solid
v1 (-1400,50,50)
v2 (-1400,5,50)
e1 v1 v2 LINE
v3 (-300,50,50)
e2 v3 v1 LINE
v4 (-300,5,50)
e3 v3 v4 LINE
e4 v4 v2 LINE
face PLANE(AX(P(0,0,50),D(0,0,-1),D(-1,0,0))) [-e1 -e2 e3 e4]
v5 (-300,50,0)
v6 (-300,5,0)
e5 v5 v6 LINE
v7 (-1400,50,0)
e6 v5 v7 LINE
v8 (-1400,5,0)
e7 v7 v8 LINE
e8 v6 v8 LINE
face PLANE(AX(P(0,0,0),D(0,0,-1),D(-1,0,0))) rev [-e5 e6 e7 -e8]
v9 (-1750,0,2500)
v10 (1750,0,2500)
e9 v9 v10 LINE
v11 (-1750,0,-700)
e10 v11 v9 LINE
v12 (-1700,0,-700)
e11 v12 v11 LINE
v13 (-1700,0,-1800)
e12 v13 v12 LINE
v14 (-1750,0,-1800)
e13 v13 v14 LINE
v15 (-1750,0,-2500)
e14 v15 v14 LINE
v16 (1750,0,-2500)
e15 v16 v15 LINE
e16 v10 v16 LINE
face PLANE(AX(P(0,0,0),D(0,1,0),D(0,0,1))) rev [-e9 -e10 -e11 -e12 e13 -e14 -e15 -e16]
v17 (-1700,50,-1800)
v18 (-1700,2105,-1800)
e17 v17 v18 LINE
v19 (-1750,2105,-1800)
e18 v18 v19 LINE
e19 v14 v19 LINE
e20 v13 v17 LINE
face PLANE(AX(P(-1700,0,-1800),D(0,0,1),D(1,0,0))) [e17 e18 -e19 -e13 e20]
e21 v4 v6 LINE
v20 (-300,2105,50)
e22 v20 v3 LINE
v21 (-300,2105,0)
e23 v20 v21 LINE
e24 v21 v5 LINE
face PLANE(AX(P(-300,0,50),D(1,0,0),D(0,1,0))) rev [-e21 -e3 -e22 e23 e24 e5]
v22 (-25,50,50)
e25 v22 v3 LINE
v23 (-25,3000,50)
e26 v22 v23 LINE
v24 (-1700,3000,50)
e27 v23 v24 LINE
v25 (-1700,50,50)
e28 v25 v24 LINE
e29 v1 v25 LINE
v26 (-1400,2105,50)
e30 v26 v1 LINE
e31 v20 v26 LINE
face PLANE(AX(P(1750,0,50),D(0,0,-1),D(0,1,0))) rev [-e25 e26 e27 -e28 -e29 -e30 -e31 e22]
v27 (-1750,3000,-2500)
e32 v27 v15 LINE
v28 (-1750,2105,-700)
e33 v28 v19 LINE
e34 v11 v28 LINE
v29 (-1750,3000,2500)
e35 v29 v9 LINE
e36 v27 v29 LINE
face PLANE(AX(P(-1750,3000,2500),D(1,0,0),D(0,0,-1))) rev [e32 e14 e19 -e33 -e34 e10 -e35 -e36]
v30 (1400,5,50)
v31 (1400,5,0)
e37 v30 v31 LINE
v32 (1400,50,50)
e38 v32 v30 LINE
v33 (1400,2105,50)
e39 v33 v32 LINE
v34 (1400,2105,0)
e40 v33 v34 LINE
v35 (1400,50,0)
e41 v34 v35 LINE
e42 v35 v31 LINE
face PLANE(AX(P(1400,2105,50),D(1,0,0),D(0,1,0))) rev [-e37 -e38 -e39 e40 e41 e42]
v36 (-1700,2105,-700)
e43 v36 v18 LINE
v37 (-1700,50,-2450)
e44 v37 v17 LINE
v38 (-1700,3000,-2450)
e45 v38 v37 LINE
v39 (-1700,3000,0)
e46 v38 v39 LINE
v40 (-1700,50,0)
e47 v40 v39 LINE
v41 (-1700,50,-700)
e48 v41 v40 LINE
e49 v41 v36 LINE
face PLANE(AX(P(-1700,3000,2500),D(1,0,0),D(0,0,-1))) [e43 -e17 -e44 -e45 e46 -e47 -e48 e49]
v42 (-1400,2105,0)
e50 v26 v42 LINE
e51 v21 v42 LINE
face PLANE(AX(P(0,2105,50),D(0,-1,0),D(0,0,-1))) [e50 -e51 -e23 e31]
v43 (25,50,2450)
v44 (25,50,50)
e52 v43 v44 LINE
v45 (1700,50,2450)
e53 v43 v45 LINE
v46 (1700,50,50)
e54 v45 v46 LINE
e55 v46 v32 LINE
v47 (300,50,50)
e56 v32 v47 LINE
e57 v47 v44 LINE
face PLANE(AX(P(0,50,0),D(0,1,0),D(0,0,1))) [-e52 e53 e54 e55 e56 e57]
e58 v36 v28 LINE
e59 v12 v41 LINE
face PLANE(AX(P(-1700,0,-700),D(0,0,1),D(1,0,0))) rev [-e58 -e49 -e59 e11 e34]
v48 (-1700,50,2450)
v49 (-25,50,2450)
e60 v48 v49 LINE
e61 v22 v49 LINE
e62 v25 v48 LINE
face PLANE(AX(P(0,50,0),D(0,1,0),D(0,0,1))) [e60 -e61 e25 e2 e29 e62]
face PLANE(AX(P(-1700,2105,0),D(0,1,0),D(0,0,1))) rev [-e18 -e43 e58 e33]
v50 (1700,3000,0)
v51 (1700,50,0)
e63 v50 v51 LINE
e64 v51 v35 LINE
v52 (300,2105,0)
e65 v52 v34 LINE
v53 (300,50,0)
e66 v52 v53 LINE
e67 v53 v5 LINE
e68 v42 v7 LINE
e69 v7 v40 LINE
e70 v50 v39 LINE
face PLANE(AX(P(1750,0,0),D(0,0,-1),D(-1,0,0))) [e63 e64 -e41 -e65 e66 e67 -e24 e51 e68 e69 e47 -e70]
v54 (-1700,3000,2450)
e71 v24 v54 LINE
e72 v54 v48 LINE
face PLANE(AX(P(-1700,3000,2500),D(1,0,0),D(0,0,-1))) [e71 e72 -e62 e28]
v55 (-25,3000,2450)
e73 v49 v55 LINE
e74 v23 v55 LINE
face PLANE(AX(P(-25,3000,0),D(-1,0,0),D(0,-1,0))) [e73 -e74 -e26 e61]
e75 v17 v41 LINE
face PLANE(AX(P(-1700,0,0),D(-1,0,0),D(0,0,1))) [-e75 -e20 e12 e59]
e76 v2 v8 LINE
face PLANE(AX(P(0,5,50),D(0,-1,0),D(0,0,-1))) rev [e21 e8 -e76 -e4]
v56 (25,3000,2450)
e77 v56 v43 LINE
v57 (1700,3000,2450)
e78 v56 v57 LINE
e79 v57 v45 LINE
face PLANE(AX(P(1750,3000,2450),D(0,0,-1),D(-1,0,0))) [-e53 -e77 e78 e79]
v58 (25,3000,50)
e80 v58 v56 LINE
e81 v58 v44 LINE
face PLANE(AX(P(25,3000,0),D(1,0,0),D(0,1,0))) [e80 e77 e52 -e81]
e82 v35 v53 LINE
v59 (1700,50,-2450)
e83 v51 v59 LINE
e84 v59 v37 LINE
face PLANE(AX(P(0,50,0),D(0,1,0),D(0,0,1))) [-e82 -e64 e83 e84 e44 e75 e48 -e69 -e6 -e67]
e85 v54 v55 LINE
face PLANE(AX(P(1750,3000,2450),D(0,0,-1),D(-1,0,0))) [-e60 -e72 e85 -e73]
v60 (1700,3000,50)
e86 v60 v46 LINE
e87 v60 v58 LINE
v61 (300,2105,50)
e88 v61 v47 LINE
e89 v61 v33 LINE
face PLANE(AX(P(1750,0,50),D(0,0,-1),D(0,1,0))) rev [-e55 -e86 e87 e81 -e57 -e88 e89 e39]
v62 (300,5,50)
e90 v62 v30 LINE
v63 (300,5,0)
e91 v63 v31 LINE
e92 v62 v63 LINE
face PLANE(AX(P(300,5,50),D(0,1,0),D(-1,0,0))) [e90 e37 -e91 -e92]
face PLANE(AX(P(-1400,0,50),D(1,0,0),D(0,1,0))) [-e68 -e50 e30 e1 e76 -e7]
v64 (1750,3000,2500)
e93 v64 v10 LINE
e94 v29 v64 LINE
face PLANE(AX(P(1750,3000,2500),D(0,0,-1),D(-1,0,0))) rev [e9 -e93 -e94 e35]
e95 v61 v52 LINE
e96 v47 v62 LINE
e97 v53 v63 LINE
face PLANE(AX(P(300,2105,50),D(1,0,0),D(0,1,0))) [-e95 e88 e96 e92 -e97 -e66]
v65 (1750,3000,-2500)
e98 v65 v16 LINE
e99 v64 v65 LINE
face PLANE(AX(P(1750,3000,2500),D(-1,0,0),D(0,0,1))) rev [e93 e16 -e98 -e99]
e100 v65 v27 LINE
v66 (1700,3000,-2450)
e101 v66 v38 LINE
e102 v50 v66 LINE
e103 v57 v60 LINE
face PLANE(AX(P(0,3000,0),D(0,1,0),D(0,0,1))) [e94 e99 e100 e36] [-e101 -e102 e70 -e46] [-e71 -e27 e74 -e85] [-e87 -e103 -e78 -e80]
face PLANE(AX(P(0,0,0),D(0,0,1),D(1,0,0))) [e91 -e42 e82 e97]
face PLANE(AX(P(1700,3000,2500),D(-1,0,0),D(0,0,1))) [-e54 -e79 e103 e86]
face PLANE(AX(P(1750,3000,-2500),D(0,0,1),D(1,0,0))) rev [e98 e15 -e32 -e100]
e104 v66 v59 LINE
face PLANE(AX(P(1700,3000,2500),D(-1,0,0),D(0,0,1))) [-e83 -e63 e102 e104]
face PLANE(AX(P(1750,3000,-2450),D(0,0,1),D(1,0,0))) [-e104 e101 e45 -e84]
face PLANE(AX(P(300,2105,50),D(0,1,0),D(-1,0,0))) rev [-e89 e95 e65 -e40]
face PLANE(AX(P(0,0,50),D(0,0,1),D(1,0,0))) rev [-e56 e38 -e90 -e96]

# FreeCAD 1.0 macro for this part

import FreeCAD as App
import Part
import Sketcher

V = App.Vector


def faces_at(feature, points):
    """Names of the faces that lie closest to the given points."""
    faces = feature.Shape.Faces
    near = lambda p: min(range(len(faces)), key=lambda i: faces[i].distToShape(Part.Vertex(*p))[0])
    return sorted({f"Face{near(p) + 1}" for p in points})


def add_polygon(sketch, points):
    """Adds a closed chain of lines whose ends are joined by coincident constraints."""
    first, n = sketch.GeometryCount, len(points)
    for a, b in zip(points, points[1:] + points[:1]):
        sketch.addGeometry(Part.LineSegment(App.Vector(*a, 0), App.Vector(*b, 0)), False)
    for i in range(n):
        sketch.addConstraint(Sketcher.Constraint("Coincident", first + i, 2, first + (i + 1) % n, 1))

doc = App.newDocument("Part")
body = doc.addObject("PartDesign::Body", "Body")

sketch1 = body.newObject("Sketcher::SketchObject", "Sketch")
sketch1.AttachmentSupport = (doc.getObject("XZ_Plane"), [""])
sketch1.MapMode = "FlatFace"
add_polygon(sketch1, [(-1750, -2500), (-1750, 2500), (1750, 2500), (1750, -2500)])
sketch1.addConstraint([
    Sketcher.Constraint("Vertical", 0),
    Sketcher.Constraint("Horizontal", 1),
    Sketcher.Constraint("Vertical", 2),
    Sketcher.Constraint("Horizontal", 3),
    Sketcher.Constraint("Symmetric", 0, 2, 2, 2, -1, 1),
    Sketcher.Constraint("DistanceX", 1, 1, 1, 2, 3500.0),
    Sketcher.Constraint("DistanceY", 0, 1, 0, 2, 5000.0),
])
pad1 = body.newObject("PartDesign::Pad", "Pad")
pad1.Profile = sketch1
pad1.Length = 3000
pad1.Reversed = True
doc.recompute()

thickness = body.newObject("PartDesign::Thickness", "Thickness")
thickness.Base = (pad1, faces_at(pad1, [(0, 3000, 0)]))
thickness.Value = 50
thickness.Reversed = True
thickness.Join = "Intersection"

sketch2 = body.newObject("Sketcher::SketchObject", "Sketch001")
sketch2.AttachmentSupport = (doc.getObject("YZ_Plane"), [""])
sketch2.MapMode = "FlatFace"
sketch2.AttachmentOffset = App.Placement(V(0, 0, -1750), App.Rotation())
add_polygon(sketch2, [(2105, -1800), (0, -1800), (0, -700), (2105, -700)])
sketch2.addConstraint([
    Sketcher.Constraint("Horizontal", 0),
    Sketcher.Constraint("Vertical", 1),
    Sketcher.Constraint("Horizontal", 2),
    Sketcher.Constraint("Vertical", 3),
    Sketcher.Constraint("PointOnObject", 0, 2, -2),
    Sketcher.Constraint("DistanceX", 0, 2, 0, 1, 2105.0),
    Sketcher.Constraint("DistanceY", 1, 1, 1, 2, 1100.0),
    Sketcher.Constraint("DistanceY", 0, 2, -1, 1, 1800.0),
])
pocket1 = body.newObject("PartDesign::Pocket", "Pocket")
pocket1.Profile = sketch2
pocket1.Length = 50
pocket1.Reversed = True

sketch3 = body.newObject("Sketcher::SketchObject", "Sketch002")
sketch3.AttachmentSupport = (doc.getObject("YZ_Plane"), [""])
sketch3.MapMode = "FlatFace"
sketch3.AttachmentOffset = App.Placement(V(0, 0, -1750), App.Rotation())
add_polygon(sketch3, [(3000, 0), (0, 0), (0, 50), (3000, 50)])
sketch3.addConstraint([
    Sketcher.Constraint("Horizontal", 0),
    Sketcher.Constraint("Vertical", 1),
    Sketcher.Constraint("Horizontal", 2),
    Sketcher.Constraint("Vertical", 3),
    Sketcher.Constraint("Coincident", 0, 2, -1, 1),
    Sketcher.Constraint("DistanceX", 0, 2, 0, 1, 3000.0),
    Sketcher.Constraint("DistanceY", 1, 1, 1, 2, 50.0),
])
pad2 = body.newObject("PartDesign::Pad", "Pad001")
pad2.Profile = sketch3
pad2.Length = 3500

sketch4 = body.newObject("Sketcher::SketchObject", "Sketch003")
sketch4.AttachmentSupport = (doc.getObject("XY_Plane"), [""])
sketch4.MapMode = "FlatFace"
sketch4.AttachmentOffset = App.Placement(V(0, 0, 2500), App.Rotation())
add_polygon(sketch4, [(-25, 3000), (-25, 0), (25, 0), (25, 3000)])
sketch4.addConstraint([
    Sketcher.Constraint("Vertical", 0),
    Sketcher.Constraint("Horizontal", 1),
    Sketcher.Constraint("Vertical", 2),
    Sketcher.Constraint("Horizontal", 3),
    Sketcher.Constraint("Symmetric", 0, 2, 1, 2, -1, 1),
    Sketcher.Constraint("DistanceX", 1, 1, 1, 2, 50.0),
    Sketcher.Constraint("DistanceY", 0, 2, 0, 1, 3000.0),
])
pad3 = body.newObject("PartDesign::Pad", "Pad002")
pad3.Profile = sketch4
pad3.Length = 2500
pad3.Reversed = True

sketch5 = body.newObject("Sketcher::SketchObject", "Sketch004")
sketch5.AttachmentSupport = (doc.getObject("XY_Plane"), [""])
sketch5.MapMode = "FlatFace"
add_polygon(sketch5, [(-300, 2105), (-300, 5), (-1400, 5), (-1400, 2105)])
add_polygon(sketch5, [(1400, 2105), (1400, 5), (300, 5), (300, 2105)])
sketch5.addConstraint([
    Sketcher.Constraint("Vertical", 0),
    Sketcher.Constraint("Horizontal", 1),
    Sketcher.Constraint("Vertical", 2),
    Sketcher.Constraint("Horizontal", 3),
    Sketcher.Constraint("Vertical", 4),
    Sketcher.Constraint("Horizontal", 5),
    Sketcher.Constraint("Vertical", 6),
    Sketcher.Constraint("Horizontal", 7),
    Sketcher.Constraint("Symmetric", 1, 2, 4, 2, -2),
    Sketcher.Constraint("Symmetric", 3, 2, 6, 2, -2),
    Sketcher.Constraint("DistanceX", 1, 2, 1, 1, 1100.0),
    Sketcher.Constraint("DistanceY", 0, 2, 0, 1, 2100.0),
    Sketcher.Constraint("DistanceX", 0, 2, -1, 1, 300.0),
    Sketcher.Constraint("DistanceY", -1, 1, 0, 2, 5.0),
])
pocket2 = body.newObject("PartDesign::Pocket", "Pocket001")
pocket2.Profile = sketch5
pocket2.Length = 50
pocket2.Reversed = True

doc.recompute()
